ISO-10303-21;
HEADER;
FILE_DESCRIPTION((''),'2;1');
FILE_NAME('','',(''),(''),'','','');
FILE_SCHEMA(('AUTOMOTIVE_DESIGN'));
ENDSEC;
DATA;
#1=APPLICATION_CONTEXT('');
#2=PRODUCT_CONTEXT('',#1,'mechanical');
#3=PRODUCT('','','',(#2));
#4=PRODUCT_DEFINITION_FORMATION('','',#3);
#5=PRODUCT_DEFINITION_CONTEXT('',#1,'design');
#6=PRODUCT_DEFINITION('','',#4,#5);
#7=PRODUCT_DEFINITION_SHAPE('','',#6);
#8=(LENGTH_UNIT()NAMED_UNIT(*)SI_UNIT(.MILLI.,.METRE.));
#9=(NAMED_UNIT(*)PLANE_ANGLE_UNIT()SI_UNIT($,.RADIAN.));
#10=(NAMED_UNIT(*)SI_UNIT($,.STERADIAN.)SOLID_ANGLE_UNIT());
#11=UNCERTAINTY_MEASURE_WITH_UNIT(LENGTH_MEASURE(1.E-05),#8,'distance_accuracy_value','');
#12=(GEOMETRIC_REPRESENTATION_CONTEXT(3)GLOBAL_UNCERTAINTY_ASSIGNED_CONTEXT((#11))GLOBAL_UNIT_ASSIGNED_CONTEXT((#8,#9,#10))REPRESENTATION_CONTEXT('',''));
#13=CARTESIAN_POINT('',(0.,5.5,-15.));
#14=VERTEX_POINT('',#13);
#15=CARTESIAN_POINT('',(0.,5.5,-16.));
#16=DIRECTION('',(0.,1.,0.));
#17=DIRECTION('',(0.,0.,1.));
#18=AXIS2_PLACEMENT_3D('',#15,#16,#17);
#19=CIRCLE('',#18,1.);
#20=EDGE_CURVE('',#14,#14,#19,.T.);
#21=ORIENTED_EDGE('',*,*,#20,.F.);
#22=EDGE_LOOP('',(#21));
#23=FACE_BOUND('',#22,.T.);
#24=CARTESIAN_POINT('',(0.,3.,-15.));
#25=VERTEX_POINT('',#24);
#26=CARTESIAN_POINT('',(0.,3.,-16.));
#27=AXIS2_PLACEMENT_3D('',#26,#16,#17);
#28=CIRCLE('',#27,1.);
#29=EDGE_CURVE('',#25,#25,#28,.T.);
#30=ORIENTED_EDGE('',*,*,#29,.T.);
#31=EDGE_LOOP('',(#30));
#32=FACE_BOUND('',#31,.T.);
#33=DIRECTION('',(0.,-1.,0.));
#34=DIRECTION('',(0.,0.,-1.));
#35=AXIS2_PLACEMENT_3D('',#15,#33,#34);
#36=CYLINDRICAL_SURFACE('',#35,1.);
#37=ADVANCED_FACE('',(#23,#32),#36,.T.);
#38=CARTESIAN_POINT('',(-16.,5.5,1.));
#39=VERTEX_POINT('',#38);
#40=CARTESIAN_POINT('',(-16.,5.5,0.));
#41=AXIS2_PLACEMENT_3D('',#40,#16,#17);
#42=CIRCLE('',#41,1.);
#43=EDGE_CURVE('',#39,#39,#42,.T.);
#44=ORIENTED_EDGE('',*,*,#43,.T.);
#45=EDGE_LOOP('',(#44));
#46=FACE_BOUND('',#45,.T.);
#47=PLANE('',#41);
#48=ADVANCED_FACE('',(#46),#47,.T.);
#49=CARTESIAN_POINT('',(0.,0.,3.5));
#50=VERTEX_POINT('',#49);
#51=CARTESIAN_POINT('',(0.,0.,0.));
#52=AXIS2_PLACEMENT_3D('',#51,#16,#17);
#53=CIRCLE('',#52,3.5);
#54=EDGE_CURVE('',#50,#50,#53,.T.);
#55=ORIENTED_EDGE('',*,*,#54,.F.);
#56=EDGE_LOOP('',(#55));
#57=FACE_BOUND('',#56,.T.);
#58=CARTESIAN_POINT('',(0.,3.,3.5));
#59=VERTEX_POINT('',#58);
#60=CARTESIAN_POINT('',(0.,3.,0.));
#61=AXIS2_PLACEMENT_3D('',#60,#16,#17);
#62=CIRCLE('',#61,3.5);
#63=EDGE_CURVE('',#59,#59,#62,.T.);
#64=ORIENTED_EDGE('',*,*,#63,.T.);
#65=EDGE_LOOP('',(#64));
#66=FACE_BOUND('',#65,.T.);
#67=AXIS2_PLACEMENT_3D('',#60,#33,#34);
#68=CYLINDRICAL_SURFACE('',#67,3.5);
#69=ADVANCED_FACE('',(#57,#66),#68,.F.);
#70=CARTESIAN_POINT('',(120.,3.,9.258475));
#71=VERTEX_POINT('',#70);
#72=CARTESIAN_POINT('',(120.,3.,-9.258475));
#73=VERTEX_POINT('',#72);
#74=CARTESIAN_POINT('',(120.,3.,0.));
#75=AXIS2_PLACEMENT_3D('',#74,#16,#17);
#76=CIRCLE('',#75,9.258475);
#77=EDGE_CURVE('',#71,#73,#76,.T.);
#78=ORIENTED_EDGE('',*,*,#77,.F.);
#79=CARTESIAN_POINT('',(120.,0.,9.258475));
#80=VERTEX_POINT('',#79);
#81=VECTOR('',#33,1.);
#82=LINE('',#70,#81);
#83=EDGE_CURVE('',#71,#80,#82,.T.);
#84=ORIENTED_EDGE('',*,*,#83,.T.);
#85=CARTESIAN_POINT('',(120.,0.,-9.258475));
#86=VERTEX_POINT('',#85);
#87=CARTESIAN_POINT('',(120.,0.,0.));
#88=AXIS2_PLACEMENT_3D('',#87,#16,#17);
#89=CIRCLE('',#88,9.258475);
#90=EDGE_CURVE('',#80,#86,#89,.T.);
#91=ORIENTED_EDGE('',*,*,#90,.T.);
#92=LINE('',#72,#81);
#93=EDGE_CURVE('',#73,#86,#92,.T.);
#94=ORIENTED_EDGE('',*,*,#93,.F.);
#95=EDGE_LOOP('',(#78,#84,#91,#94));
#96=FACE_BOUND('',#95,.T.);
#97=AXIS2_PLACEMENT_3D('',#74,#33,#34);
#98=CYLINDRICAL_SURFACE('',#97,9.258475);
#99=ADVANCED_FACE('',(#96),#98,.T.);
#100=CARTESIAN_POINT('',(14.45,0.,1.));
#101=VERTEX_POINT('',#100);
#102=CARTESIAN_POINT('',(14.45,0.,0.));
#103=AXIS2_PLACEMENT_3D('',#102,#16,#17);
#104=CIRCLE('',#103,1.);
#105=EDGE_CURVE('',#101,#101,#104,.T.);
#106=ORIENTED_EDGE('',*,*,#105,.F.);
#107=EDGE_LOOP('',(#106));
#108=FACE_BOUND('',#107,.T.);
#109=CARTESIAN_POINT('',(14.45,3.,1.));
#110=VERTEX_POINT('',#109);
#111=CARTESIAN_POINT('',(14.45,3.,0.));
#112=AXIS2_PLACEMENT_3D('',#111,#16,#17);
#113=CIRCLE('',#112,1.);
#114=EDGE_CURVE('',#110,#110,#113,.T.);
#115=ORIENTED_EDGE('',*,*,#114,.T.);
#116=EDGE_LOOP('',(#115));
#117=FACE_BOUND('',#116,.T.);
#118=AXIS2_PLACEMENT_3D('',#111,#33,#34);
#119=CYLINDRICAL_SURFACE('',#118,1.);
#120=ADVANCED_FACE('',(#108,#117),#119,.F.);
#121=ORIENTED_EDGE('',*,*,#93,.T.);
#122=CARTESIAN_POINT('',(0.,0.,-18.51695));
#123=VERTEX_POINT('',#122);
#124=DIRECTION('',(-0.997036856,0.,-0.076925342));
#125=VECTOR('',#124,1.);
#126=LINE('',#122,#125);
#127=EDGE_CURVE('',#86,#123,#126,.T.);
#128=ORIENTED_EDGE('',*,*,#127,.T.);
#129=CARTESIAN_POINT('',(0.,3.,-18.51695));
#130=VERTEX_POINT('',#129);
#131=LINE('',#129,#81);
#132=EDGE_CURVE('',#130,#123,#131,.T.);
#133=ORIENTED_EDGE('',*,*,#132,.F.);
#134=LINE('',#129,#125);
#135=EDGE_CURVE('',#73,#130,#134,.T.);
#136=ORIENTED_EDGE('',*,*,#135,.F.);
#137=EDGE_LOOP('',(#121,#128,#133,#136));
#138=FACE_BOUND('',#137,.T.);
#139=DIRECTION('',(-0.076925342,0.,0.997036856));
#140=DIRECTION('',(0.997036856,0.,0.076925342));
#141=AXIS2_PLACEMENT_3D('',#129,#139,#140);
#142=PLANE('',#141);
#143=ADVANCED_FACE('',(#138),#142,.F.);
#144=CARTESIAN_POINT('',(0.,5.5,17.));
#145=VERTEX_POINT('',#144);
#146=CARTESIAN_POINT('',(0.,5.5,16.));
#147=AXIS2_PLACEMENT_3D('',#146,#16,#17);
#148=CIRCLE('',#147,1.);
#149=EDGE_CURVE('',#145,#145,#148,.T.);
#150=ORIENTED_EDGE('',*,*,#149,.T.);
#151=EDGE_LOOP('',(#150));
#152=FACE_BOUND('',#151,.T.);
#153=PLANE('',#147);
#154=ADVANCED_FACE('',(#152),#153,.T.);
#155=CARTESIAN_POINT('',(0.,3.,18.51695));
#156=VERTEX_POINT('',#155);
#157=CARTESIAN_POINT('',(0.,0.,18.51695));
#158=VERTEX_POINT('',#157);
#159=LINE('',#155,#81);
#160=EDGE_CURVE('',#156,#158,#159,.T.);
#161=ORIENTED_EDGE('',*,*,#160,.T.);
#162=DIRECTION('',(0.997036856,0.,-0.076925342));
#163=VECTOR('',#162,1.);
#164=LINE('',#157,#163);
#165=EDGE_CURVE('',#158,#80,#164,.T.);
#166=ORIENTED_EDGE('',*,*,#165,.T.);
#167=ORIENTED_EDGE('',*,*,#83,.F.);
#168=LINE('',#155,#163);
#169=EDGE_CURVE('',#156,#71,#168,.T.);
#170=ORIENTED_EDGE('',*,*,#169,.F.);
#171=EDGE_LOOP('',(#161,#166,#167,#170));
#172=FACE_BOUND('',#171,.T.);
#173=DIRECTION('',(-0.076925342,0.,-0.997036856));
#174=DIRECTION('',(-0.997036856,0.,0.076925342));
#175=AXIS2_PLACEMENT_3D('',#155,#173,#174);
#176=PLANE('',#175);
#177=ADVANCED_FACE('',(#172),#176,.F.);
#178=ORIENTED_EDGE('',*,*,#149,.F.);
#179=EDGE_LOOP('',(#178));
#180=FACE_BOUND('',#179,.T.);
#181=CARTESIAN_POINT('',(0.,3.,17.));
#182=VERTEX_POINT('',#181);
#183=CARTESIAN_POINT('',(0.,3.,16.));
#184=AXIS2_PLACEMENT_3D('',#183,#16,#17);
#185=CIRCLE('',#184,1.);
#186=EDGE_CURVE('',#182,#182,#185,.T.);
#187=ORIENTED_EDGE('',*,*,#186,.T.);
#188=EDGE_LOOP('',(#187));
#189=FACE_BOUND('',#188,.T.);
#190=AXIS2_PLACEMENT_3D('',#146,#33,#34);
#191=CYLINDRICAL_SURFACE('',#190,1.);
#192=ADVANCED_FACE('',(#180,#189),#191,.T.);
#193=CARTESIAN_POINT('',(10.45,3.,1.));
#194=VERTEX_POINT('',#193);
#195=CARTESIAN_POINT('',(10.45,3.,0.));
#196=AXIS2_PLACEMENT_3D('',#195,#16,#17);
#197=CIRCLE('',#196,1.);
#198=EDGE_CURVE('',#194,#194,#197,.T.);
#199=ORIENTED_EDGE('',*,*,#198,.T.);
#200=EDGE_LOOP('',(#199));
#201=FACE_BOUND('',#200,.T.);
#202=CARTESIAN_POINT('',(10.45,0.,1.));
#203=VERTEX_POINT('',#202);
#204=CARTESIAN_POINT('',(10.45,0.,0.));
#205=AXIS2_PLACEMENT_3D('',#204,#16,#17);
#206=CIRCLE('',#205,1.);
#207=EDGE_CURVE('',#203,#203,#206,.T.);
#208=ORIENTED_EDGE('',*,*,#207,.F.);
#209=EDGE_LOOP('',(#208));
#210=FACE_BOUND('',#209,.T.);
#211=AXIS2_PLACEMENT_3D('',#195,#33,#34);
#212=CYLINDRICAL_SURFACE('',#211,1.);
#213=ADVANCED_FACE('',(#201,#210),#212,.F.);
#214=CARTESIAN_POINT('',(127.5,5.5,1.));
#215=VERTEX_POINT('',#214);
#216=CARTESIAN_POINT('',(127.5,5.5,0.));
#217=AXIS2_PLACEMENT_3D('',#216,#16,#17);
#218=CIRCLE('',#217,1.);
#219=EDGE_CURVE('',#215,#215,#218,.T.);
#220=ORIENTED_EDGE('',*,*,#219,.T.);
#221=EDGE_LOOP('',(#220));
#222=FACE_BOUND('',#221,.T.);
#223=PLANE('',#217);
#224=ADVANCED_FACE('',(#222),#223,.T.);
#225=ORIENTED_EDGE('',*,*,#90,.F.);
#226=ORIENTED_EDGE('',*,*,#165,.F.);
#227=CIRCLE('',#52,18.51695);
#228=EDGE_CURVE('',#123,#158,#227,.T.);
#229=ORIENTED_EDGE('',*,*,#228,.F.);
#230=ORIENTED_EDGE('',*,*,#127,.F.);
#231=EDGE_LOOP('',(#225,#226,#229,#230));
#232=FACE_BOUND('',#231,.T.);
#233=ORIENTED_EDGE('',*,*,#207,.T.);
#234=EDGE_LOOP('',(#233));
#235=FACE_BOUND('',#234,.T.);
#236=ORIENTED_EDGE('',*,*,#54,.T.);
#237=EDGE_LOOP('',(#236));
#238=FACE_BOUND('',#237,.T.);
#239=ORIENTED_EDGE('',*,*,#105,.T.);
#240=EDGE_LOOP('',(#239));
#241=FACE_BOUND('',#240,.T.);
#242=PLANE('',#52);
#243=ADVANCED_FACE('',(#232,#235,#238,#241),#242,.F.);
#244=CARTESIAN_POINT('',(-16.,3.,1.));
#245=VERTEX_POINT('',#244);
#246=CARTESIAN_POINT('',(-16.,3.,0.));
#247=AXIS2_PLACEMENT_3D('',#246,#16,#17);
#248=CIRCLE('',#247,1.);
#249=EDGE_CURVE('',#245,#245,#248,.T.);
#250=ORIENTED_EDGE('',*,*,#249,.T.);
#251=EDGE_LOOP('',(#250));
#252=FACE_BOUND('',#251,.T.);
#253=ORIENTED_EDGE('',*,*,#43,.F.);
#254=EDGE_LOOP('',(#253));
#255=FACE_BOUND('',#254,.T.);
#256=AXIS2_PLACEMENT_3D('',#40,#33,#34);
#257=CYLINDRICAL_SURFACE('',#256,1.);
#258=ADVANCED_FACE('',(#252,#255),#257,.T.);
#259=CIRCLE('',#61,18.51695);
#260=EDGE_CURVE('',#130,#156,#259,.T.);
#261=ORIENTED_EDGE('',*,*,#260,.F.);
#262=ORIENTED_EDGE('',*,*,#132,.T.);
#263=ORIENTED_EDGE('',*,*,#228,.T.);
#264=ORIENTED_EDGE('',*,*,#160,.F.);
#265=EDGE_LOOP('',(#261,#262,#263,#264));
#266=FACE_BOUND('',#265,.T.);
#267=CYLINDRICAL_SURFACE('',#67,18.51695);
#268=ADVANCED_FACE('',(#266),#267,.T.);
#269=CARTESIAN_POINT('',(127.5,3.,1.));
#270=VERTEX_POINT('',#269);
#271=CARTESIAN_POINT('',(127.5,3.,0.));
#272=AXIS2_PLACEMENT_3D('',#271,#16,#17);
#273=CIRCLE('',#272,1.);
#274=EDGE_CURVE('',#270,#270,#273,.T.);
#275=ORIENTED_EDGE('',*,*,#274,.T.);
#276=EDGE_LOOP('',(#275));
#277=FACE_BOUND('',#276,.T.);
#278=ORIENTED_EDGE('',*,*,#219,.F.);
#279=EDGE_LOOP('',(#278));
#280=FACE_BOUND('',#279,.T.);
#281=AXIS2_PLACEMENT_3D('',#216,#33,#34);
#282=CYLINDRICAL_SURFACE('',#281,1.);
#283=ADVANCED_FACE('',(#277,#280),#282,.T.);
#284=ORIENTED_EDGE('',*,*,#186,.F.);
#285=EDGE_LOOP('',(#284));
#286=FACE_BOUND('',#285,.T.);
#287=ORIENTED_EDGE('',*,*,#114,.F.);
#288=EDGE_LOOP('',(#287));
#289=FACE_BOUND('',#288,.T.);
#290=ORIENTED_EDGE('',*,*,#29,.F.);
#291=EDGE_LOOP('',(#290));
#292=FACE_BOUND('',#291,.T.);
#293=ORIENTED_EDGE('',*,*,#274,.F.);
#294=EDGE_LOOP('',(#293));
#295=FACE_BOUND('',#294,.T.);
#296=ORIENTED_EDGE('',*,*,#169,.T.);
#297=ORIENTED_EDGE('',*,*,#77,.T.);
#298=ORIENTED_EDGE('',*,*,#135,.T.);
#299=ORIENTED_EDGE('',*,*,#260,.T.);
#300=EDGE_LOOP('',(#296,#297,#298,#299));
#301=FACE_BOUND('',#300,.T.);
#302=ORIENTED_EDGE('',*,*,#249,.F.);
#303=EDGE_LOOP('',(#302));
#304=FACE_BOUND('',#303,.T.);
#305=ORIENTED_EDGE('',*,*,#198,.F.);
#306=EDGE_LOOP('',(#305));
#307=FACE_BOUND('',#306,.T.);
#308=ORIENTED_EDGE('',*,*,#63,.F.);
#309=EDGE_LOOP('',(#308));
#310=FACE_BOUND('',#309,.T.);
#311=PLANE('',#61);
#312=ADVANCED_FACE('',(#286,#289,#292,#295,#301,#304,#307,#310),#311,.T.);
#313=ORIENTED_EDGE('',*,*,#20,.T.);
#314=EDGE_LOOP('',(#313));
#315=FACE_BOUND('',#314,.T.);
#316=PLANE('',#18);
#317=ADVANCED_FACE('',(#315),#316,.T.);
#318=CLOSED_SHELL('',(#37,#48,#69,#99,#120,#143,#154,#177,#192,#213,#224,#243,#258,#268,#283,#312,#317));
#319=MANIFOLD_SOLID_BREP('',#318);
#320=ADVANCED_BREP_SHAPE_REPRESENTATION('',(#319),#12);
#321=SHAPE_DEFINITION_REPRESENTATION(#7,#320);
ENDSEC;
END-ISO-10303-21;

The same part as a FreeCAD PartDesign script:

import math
import FreeCAD as App
import Part
import Sketcher
Q = App.Units.Quantity

doc = App.newDocument("Part")
body = doc.addObject("PartDesign::Body", "Body")

# Sketch on XZ plane
sketch1 = doc.addObject("Sketcher::SketchObject", "Sketch")
body.addObject(sketch1)
sketch1.AttachmentSupport = (doc.XZ_Plane, [""])
sketch1.MapMode = "FlatFace"
sketch1.addGeometry(Part.LineSegment(App.Vector(120, -9.3, 0), App.Vector(0, -18.5, 0)), False)
sketch1.addGeometry(Part.ArcOfCircle(Part.Circle(App.Vector(0, 0, 0), App.Vector(0, 0, 1), 18.5), math.radians(90), math.radians(270)), False)
sketch1.addGeometry(Part.LineSegment(App.Vector(0, 18.5, 0), App.Vector(120, 9.3, 0)), False)
sketch1.addGeometry(Part.ArcOfCircle(Part.Circle(App.Vector(120, 0, 0), App.Vector(0, 0, 1), 9.3), math.radians(-90), math.radians(90)), False)
sketch1.addGeometry(Part.Circle(App.Vector(14.4, 0, 0), App.Vector(0, 0, 1), 1), False)
sketch1.addGeometry(Part.Circle(App.Vector(10.4, 0, 0), App.Vector(0, 0, 1), 1), False)
sketch1.addGeometry(Part.Circle(App.Vector(0, 0, 0), App.Vector(0, 0, 1), 3.5), False)
sketch1.addConstraint(Sketcher.Constraint("Coincident", 0, 2, 1, 2))
sketch1.addConstraint(Sketcher.Constraint("Coincident", 1, 1, 2, 1))
sketch1.addConstraint(Sketcher.Constraint("Coincident", 2, 2, 3, 2))
sketch1.addConstraint(Sketcher.Constraint("Coincident", 3, 1, 0, 1))
sketch1.addConstraint(Sketcher.Constraint("Coincident", 1, 3, -1, 1))
sketch1.addConstraint(Sketcher.Constraint("Coincident", 6, 3, -1, 1))
sketch1.addConstraint(Sketcher.Constraint("Equal", 4, 5))
sketch1.addConstraint(Sketcher.Constraint("Symmetric", 2, 2, 3, 1, -1))
sketch1.addConstraint(Sketcher.Constraint("PointOnObject", 4, 3, -1))
sketch1.addConstraint(Sketcher.Constraint("PointOnObject", 5, 3, -1))
sketch1.addConstraint(Sketcher.Constraint("PointOnObject", 0, 2, -2))
sketch1.addConstraint(Sketcher.Constraint("PointOnObject", 1, 1, -2))
sketch1.addConstraint(Sketcher.Constraint("Vertical", 3, 3, 2, 2))
sketch1.addConstraint(Sketcher.Constraint("Diameter", 4, Q("2 mm")))
sketch1.addConstraint(Sketcher.Constraint("Diameter", 6, Q("7 mm")))
sketch1.addConstraint(Sketcher.Constraint("DistanceX", -1, 1, 3, 3, Q("120 mm")))
sketch1.addConstraint(Sketcher.Constraint("DistanceX", 5, 3, 4, 3, Q("4 mm")))
sketch1.addConstraint(Sketcher.Constraint("DistanceX", -1, 1, 4, 3, Q("14.45 mm")))
sketch1.addConstraint(Sketcher.Constraint("Radius", 1, Q("18.51695 mm")))
sketch1.addConstraint(Sketcher.Constraint("Radius", 3, Q("9.258475 mm")))
pad1 = doc.addObject("PartDesign::Pad", "Pad")
body.addObject(pad1)
pad1.Profile = sketch1
pad1.Length = 3
pad1.Reversed = True

# Sketch on XZ plane
sketch2 = doc.addObject("Sketcher::SketchObject", "Sketch001")
body.addObject(sketch2)
sketch2.AttachmentSupport = (doc.XZ_Plane, [""])
sketch2.MapMode = "FlatFace"
sketch2.AttachmentOffset = App.Placement(App.Vector(0, 0, -3), App.Rotation())
sketch2.addGeometry(Part.Circle(App.Vector(-16, 0, 0), App.Vector(0, 0, 1), 1), False)
sketch2.addGeometry(Part.Circle(App.Vector(0, -16, 0), App.Vector(0, 0, 1), 1), False)
sketch2.addGeometry(Part.Circle(App.Vector(0, 16, 0), App.Vector(0, 0, 1), 1), False)
sketch2.addGeometry(Part.Circle(App.Vector(127.5, 0, 0), App.Vector(0, 0, 1), 1), False)
sketch2.addConstraint(Sketcher.Constraint("Equal", 0, 1))
sketch2.addConstraint(Sketcher.Constraint("Equal", 1, 2))
sketch2.addConstraint(Sketcher.Constraint("Equal", 2, 3))
sketch2.addConstraint(Sketcher.Constraint("Symmetric", 1, 3, 2, 3, -1, 1))
sketch2.addConstraint(Sketcher.Constraint("PointOnObject", 0, 3, -1))
sketch2.addConstraint(Sketcher.Constraint("PointOnObject", 1, 3, -2))
sketch2.addConstraint(Sketcher.Constraint("PointOnObject", 3, 3, -1))
sketch2.addConstraint(Sketcher.Constraint("Diameter", 0, Q("2 mm")))
sketch2.addConstraint(Sketcher.Constraint("DistanceX", 0, 3, -1, 1, Q("16 mm")))
sketch2.addConstraint(Sketcher.Constraint("DistanceY", 1, 3, -1, 1, Q("16 mm")))
sketch2.addConstraint(Sketcher.Constraint("DistanceX", -1, 1, 3, 3, Q("127.5 mm")))
pad2 = doc.addObject("PartDesign::Pad", "Pad001")
body.addObject(pad2)
pad2.Profile = sketch2
pad2.Length = 2.5
pad2.Reversed = True

doc.recompute()
